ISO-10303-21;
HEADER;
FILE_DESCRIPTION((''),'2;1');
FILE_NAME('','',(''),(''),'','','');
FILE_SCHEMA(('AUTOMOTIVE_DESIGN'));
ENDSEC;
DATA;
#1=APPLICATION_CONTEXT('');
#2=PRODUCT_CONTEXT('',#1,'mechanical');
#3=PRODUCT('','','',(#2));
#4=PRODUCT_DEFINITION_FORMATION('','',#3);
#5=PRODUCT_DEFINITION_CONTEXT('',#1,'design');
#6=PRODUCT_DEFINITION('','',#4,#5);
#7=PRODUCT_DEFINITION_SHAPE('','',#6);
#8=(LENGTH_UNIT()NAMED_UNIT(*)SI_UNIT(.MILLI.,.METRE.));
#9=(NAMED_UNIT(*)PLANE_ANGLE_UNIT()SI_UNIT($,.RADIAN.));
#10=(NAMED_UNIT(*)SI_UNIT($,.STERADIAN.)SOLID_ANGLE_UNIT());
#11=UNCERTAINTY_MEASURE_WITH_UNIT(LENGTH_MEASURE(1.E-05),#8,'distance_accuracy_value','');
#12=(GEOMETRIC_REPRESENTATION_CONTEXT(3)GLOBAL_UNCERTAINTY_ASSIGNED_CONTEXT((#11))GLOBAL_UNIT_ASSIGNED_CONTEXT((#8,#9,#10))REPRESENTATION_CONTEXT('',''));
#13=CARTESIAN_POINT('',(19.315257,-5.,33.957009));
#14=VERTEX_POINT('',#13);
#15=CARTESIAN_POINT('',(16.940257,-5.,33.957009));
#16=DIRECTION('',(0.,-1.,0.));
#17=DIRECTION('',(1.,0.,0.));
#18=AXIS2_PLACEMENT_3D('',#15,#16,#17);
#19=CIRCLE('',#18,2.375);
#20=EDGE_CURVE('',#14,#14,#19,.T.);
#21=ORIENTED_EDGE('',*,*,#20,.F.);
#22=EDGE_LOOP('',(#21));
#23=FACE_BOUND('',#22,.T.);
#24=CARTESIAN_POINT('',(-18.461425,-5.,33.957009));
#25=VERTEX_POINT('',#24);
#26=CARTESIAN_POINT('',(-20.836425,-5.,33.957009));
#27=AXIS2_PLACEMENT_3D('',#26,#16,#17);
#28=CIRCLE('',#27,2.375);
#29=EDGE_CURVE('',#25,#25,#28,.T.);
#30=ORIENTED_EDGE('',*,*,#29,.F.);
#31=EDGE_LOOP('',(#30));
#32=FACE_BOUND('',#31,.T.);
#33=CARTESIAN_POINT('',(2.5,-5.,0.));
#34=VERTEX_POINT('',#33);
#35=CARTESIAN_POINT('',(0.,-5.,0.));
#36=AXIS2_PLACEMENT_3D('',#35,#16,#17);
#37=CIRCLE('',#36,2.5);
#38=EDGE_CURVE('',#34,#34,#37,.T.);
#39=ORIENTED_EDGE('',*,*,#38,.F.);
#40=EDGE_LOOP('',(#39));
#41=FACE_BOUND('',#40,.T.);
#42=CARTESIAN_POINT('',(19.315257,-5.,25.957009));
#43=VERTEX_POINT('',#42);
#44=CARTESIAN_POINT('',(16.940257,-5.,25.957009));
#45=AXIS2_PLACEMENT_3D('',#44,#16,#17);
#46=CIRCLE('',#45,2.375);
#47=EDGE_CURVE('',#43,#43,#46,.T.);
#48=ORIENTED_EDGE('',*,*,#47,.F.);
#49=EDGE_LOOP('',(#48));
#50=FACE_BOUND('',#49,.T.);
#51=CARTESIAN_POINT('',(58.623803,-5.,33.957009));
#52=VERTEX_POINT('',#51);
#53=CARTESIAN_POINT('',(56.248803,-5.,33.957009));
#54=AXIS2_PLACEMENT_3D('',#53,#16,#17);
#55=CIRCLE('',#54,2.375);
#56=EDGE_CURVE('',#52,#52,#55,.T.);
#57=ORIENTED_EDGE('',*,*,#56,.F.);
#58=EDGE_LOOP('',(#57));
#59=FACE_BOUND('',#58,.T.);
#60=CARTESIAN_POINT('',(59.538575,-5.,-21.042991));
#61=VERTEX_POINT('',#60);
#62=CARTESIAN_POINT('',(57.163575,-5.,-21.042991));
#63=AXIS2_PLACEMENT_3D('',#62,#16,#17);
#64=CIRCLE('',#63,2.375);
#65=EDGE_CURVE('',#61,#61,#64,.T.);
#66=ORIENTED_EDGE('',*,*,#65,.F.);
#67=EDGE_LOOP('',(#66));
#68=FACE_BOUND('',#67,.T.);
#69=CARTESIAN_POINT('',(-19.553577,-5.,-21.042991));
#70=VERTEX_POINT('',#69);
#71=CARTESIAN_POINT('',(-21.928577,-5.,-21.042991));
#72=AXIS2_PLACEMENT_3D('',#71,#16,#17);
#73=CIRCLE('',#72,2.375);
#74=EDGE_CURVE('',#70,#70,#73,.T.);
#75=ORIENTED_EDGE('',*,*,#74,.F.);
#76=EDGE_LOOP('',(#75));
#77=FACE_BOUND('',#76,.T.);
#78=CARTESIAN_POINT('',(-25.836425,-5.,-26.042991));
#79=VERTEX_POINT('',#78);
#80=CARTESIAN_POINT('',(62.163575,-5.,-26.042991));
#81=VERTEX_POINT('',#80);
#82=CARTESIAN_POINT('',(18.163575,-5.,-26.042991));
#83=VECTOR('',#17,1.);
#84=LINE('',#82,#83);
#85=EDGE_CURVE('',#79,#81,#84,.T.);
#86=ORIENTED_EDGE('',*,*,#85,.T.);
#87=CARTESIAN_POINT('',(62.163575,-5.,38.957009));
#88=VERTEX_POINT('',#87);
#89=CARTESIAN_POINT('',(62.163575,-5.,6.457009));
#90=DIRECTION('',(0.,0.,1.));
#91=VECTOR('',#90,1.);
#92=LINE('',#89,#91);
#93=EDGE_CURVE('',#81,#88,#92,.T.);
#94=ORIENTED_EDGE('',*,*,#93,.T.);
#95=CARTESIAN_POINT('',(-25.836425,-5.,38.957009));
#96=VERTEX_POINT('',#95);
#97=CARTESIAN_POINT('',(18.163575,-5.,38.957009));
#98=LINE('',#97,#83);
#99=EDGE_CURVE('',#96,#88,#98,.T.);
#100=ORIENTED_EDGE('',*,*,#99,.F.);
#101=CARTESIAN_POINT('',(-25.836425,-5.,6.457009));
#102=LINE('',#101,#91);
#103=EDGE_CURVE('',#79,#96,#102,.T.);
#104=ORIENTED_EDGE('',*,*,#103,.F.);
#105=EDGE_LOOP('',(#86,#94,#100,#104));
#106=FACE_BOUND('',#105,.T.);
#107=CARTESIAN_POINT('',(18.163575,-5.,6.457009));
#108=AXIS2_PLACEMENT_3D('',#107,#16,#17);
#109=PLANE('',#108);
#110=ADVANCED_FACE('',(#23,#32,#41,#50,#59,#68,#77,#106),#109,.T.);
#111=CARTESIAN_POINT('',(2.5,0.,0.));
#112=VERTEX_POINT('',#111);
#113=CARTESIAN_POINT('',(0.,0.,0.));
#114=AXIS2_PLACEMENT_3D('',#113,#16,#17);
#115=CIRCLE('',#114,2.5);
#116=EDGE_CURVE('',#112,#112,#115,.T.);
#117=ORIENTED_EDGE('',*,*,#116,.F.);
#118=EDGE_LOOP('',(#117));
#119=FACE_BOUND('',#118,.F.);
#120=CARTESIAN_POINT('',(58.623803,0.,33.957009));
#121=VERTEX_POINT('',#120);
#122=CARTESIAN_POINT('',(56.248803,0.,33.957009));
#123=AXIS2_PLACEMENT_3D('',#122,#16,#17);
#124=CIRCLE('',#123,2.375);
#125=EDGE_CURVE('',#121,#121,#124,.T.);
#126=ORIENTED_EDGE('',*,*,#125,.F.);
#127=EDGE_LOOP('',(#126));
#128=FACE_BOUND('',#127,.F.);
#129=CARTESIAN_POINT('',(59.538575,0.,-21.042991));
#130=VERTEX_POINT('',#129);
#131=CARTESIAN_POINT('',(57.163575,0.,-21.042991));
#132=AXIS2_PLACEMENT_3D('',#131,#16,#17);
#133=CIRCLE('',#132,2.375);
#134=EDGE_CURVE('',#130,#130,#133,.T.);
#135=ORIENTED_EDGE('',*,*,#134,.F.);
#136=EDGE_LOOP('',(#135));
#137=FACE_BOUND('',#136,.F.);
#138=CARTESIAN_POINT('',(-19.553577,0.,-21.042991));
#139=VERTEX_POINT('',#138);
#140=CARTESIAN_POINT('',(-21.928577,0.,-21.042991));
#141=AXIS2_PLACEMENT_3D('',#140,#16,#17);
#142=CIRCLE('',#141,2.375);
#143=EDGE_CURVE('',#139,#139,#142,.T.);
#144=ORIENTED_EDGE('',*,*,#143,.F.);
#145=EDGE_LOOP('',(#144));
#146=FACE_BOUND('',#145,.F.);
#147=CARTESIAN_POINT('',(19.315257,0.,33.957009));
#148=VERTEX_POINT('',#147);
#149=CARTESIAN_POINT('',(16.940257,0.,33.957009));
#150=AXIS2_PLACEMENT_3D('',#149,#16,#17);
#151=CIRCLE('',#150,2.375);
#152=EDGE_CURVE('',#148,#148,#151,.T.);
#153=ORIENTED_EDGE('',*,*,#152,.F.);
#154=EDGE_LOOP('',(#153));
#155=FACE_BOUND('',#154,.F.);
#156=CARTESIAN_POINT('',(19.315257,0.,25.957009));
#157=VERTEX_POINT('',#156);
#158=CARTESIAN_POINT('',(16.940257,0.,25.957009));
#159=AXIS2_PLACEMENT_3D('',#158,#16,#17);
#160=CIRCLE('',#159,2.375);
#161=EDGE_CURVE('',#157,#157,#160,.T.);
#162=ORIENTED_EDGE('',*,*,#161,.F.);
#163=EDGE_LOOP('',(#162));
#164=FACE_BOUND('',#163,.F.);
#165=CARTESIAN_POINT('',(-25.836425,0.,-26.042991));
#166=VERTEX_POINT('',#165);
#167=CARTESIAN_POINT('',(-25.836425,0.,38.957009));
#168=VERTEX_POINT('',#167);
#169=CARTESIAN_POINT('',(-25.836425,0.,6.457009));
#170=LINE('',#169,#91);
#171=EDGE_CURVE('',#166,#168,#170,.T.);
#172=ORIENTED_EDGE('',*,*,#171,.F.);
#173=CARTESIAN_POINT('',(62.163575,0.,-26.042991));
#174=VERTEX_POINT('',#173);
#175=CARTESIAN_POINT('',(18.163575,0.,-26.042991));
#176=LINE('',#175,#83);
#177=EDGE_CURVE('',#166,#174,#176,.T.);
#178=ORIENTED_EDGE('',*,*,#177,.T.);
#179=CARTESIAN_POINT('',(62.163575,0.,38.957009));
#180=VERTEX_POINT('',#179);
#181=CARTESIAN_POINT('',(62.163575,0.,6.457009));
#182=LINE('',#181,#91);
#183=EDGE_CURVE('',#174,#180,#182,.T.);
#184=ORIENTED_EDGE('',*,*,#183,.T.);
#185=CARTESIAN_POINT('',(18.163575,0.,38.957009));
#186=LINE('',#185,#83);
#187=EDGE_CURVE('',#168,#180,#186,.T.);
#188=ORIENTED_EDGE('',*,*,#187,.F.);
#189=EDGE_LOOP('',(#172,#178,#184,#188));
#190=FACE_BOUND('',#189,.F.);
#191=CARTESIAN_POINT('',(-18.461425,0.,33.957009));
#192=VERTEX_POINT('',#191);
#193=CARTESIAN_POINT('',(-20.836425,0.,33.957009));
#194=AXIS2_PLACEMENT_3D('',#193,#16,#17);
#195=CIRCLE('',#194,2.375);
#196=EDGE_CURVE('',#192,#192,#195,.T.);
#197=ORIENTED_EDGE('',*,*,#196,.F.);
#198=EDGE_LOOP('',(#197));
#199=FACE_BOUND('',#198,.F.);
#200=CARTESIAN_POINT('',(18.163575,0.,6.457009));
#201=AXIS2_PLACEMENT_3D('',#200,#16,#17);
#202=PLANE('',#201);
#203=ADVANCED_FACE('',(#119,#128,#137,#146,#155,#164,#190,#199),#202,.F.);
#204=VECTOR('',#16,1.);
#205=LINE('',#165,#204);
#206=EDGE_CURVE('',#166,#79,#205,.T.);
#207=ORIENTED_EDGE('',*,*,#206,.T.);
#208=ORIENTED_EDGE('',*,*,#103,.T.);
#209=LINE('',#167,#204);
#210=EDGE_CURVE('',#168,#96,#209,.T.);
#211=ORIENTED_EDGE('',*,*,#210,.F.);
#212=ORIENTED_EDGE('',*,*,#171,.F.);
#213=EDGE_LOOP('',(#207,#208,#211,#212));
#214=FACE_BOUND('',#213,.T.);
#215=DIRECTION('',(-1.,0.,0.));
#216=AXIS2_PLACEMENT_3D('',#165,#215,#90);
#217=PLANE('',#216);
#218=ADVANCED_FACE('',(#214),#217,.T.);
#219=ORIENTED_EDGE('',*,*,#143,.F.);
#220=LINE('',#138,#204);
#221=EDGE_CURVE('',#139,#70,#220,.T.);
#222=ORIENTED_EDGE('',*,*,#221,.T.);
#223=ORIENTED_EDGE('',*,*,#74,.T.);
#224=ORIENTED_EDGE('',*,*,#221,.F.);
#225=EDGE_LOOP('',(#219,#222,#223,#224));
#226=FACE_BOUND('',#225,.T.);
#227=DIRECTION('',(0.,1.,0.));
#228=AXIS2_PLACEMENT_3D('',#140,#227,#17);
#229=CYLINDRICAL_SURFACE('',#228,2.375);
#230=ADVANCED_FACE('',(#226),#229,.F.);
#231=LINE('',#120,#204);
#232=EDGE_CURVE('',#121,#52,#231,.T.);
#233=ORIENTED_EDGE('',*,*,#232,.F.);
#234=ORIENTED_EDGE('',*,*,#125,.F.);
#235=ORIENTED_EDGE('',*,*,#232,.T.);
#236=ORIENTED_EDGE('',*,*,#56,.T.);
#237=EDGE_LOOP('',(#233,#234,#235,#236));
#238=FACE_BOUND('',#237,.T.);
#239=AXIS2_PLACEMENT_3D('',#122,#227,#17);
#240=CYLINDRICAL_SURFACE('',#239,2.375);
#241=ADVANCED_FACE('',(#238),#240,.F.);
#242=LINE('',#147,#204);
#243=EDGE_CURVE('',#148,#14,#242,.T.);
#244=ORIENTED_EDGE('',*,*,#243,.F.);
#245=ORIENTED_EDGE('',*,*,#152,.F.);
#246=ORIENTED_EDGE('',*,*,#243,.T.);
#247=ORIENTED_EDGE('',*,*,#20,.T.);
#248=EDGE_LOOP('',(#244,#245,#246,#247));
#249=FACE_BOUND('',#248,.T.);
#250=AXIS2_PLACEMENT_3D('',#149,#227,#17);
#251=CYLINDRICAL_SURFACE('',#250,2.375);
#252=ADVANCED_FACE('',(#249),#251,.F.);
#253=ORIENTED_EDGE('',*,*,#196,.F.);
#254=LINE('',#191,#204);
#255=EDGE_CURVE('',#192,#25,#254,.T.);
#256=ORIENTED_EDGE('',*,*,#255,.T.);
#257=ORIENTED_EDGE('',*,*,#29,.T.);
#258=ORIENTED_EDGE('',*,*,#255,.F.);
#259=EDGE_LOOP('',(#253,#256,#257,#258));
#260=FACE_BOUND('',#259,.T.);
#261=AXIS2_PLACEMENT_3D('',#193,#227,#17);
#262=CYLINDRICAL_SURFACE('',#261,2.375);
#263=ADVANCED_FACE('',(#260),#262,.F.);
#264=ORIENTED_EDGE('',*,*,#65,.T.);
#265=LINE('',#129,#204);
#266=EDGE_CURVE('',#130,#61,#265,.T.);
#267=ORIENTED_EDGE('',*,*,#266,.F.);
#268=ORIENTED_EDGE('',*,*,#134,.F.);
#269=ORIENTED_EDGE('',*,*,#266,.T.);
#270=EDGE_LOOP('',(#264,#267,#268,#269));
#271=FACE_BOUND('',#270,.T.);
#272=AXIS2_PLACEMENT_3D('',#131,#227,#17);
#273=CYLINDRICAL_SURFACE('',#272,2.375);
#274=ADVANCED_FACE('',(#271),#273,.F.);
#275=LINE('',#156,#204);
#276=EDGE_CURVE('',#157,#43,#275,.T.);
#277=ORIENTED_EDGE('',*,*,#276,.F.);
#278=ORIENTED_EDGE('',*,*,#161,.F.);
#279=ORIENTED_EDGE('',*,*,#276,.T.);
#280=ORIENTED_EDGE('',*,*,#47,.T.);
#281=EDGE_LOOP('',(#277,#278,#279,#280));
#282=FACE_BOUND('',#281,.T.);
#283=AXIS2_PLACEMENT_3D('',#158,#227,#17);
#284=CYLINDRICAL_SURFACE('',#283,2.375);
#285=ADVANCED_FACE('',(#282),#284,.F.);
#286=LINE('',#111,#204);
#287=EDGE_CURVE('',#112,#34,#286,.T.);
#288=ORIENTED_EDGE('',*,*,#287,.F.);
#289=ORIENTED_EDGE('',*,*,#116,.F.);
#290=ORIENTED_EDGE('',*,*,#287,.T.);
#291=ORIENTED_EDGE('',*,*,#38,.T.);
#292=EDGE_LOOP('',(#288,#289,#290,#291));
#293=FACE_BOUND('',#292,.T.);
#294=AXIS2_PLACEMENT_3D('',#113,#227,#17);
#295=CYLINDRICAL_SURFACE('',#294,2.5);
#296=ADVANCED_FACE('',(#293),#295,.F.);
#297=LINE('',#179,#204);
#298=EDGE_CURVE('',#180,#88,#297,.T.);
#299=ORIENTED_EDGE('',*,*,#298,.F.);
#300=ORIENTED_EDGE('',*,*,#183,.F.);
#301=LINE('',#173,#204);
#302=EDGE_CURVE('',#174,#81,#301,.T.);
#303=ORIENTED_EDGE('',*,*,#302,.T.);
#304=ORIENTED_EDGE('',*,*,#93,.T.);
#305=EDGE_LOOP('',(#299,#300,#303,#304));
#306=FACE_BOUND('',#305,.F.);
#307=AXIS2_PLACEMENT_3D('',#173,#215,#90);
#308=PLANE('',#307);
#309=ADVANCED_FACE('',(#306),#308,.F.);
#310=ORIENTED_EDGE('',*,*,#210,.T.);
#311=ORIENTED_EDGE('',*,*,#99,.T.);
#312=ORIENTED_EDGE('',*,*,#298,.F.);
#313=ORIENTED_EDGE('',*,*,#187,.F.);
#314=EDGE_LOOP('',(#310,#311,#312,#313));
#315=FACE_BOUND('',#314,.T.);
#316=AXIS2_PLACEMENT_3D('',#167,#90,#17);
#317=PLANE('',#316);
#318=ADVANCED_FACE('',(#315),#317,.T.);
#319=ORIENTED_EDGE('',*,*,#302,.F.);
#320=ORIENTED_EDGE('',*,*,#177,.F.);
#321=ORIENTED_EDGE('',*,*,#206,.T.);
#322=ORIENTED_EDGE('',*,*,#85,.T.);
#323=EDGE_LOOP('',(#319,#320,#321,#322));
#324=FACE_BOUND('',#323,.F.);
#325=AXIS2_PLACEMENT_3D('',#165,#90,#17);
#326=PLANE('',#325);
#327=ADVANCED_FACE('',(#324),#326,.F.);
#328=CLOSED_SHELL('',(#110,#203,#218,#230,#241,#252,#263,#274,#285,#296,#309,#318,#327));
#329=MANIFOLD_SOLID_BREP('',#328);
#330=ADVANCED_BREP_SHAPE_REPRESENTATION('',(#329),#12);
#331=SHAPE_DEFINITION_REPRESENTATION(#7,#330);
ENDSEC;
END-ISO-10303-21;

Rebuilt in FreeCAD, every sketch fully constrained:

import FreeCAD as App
import Part
import Sketcher
from FreeCAD import Vector
Q = App.Units.Quantity


def add_polygon(sketch, points):
    """Adds a closed chain of lines whose ends are joined by coincident constraints."""
    first, n = sketch.GeometryCount, len(points)
    for a, b in zip(points, points[1:] + points[:1]):
        sketch.addGeometry(Part.LineSegment(App.Vector(*a, 0), App.Vector(*b, 0)), False)
    for i in range(n):
        sketch.addConstraint(Sketcher.Constraint("Coincident", first + i, 2, first + (i + 1) % n, 1))

doc = App.newDocument("Part")
body = doc.addObject("PartDesign::Body", "Body")

sketch1 = doc.addObject("Sketcher::SketchObject", "Sketch")
body.addObject(sketch1)
sketch1.AttachmentSupport = (doc.XZ_Plane, [""])
sketch1.MapMode = "FlatFace"
add_polygon(sketch1, [(-25.8, 39), (-25.8, -26), (62.2, -26), (62.2, 39)])
sketch1.addGeometry(Part.Circle(Vector(-21.9, -21, 0), Vector(0, 0, 1), 2.4), False)
sketch1.addGeometry(Part.Circle(Vector(0, 0, 0), Vector(0, 0, 1), 2.5), False)
sketch1.addGeometry(Part.Circle(Vector(57.2, -21, 0), Vector(0, 0, 1), 2.4), False)
sketch1.addGeometry(Part.Circle(Vector(-20.8, 34, 0), Vector(0, 0, 1), 2.4), False)
sketch1.addGeometry(Part.Circle(Vector(16.9, 26, 0), Vector(0, 0, 1), 2.4), False)
sketch1.addGeometry(Part.Circle(Vector(16.9, 34, 0), Vector(0, 0, 1), 2.4), False)
sketch1.addGeometry(Part.Circle(Vector(56.2, 34, 0), Vector(0, 0, 1), 2.4), False)
sketch1.addConstraint([
    Sketcher.Constraint("Vertical", 0),
    Sketcher.Constraint("Horizontal", 1),
    Sketcher.Constraint("Vertical", 2),
    Sketcher.Constraint("Horizontal", 3),
    Sketcher.Constraint("Coincident", 5, 3, -1, 1),
    Sketcher.Constraint("Equal", 4, 6),
    Sketcher.Constraint("Equal", 6, 7),
    Sketcher.Constraint("Equal", 7, 8),
    Sketcher.Constraint("Equal", 8, 9),
    Sketcher.Constraint("Equal", 9, 10),
    Sketcher.Constraint("Horizontal", 4, 3, 6, 3),
    Sketcher.Constraint("Horizontal", 7, 3, 9, 3),
    Sketcher.Constraint("Horizontal", 9, 3, 10, 3),
    Sketcher.Constraint("Vertical", 8, 3, 9, 3),
    Sketcher.Constraint("Diameter", 5, Q("5 mm")),
    Sketcher.Constraint("Diameter", 4, Q("4.75 mm")),
    Sketcher.Constraint("DistanceX", 1, 1, 1, 2, Q("88 mm")),
    Sketcher.Constraint("DistanceY", 0, 2, 0, 1, Q("65 mm")),
    Sketcher.Constraint("DistanceY", 4, 3, 7, 3, Q("55 mm")),
    Sketcher.Constraint("DistanceX", 7, 3, 6, 3, Q("78 mm")),
    Sketcher.Constraint("DistanceY", 8, 3, 7, 3, Q("8 mm")),
    Sketcher.Constraint("DistanceY", 0, 2, 4, 3, Q("5 mm")),
    Sketcher.Constraint("DistanceX", 0, 2, 7, 3, Q("5 mm")),
    Sketcher.Constraint("DistanceY", 4, 3, -1, 1, Q("21.042991 mm")),
    Sketcher.Constraint("DistanceX", 4, 3, 6, 3, Q("79.092152 mm")),
    Sketcher.Constraint("DistanceX", 7, 3, 8, 3, Q("37.776682 mm")),
    Sketcher.Constraint("DistanceX", 10, 3, 6, 3, Q("0.914772 mm")),
    Sketcher.Constraint("DistanceX", 4, 3, -1, 1, Q("21.928577 mm")),
])
pad1 = doc.addObject("PartDesign::Pad", "Pad")
body.addObject(pad1)
pad1.Profile = sketch1
pad1.Length = 5

doc.recompute()
